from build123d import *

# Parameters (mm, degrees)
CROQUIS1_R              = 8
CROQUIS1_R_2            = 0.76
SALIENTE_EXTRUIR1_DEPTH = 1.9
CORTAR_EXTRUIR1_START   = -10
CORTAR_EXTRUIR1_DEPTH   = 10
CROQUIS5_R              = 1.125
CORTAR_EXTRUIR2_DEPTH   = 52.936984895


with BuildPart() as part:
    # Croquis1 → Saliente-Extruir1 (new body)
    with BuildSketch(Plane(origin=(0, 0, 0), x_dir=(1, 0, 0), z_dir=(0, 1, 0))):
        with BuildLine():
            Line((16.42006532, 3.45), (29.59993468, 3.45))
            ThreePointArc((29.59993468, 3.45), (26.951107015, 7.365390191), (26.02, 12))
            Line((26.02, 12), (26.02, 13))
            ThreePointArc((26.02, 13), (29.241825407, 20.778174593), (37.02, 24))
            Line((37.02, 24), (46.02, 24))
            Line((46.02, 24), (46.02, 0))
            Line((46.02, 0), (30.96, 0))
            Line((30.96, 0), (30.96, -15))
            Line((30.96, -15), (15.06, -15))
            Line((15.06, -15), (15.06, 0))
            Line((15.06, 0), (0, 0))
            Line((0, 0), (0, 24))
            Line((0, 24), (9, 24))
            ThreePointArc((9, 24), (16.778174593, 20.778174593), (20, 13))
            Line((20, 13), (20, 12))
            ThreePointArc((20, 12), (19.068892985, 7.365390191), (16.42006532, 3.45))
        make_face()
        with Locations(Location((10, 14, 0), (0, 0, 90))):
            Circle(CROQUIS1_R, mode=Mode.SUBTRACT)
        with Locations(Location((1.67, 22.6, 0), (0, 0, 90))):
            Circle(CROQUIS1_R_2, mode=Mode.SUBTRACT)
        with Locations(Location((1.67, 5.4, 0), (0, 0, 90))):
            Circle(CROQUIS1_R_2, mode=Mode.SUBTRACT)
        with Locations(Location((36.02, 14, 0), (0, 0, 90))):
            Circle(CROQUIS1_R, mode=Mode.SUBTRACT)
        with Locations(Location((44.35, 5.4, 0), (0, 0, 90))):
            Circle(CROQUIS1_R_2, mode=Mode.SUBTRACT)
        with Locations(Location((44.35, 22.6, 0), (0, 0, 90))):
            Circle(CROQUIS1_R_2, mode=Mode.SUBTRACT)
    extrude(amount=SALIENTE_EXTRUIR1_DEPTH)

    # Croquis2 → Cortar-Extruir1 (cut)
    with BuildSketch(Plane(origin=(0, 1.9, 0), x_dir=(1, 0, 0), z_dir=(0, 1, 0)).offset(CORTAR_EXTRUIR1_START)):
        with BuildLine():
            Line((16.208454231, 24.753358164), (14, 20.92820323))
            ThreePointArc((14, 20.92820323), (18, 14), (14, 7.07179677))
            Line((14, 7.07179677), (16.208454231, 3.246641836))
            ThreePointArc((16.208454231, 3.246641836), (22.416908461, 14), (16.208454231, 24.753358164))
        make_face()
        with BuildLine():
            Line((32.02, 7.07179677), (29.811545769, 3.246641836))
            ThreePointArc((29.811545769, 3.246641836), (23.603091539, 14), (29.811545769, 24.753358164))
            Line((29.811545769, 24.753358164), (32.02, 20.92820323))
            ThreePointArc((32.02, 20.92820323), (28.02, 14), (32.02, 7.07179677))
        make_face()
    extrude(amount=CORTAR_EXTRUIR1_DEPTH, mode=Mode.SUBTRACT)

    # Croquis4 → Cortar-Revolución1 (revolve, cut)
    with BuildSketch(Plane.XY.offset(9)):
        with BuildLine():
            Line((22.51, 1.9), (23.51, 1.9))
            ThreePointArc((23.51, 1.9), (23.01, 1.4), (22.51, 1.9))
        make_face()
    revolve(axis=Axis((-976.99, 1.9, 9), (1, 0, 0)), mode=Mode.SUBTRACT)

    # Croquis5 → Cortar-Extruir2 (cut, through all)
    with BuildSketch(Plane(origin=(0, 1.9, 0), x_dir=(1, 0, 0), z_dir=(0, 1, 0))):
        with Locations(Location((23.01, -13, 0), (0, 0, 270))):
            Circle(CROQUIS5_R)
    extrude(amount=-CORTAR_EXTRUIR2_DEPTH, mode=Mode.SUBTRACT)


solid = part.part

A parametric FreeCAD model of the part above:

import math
import FreeCAD as App
import Part
import Sketcher
from FreeCAD import Vector
Q = App.Units.Quantity

doc = App.newDocument("Part")
body = doc.addObject("PartDesign::Body", "Body")

sketch1 = doc.addObject("Sketcher::SketchObject", "Sketch")
body.addObject(sketch1)
sketch1.AttachmentSupport = (doc.XZ_Plane, [""])
sketch1.MapMode = "FlatFace"
sketch1.addGeometry([
    Part.LineSegment(Vector(29.6, -3.5, 0), Vector(16.4, -3.5, 0)),
    Part.ArcOfCircle(Part.Circle(Vector(8, -12, 0), Vector(0, 0, 1), 12), math.radians(0), math.radians(45)),
    Part.LineSegment(Vector(20, -12, 0), Vector(20, -13, 0)),
    Part.ArcOfCircle(Part.Circle(Vector(9, -13, 0), Vector(0, 0, 1), 11), math.radians(-90), math.radians(0)),
    Part.LineSegment(Vector(9, -24, 0), Vector(0, -24, 0)),
    Part.LineSegment(Vector(0, -24, 0), Vector(0, 0, 0)),
    Part.LineSegment(Vector(0, 0, 0), Vector(15.1, 0, 0)),
    Part.LineSegment(Vector(15.1, 0, 0), Vector(15.1, 15, 0)),
    Part.LineSegment(Vector(15.1, 15, 0), Vector(31, 15, 0)),
    Part.LineSegment(Vector(31, 15, 0), Vector(31, 0, 0)),
    Part.LineSegment(Vector(31, 0, 0), Vector(46, 0, 0)),
    Part.LineSegment(Vector(46, 0, 0), Vector(46, -24, 0)),
    Part.LineSegment(Vector(46, -24, 0), Vector(37, -24, 0)),
    Part.ArcOfCircle(Part.Circle(Vector(37, -13, 0), Vector(0, 0, 1), 11), math.radians(180), math.radians(270)),
    Part.LineSegment(Vector(26, -13, 0), Vector(26, -12, 0)),
    Part.ArcOfCircle(Part.Circle(Vector(38, -12, 0), Vector(0, 0, 1), 12), math.radians(135), math.radians(180)),
    Part.Circle(Vector(44.4, -5.4, 0), Vector(0, 0, 1), 0.8),
    Part.Circle(Vector(1.7, -5.4, 0), Vector(0, 0, 1), 0.8),
    Part.Circle(Vector(36, -14, 0), Vector(0, 0, 1), 8),
    Part.Circle(Vector(44.4, -22.6, 0), Vector(0, 0, 1), 0.8),
    Part.Circle(Vector(10, -14, 0), Vector(0, 0, 1), 8),
    Part.Circle(Vector(1.7, -22.6, 0), Vector(0, 0, 1), 0.8),
], False)
sketch1.addConstraint([
    Sketcher.Constraint("Coincident", 0, 2, 1, 2),
    Sketcher.Constraint("Tangent", 1, 1, 2, 1),
    Sketcher.Constraint("Tangent", 2, 2, 3, 2),
    Sketcher.Constraint("Tangent", 3, 1, 4, 1),
    Sketcher.Constraint("Coincident", 4, 2, 5, 1),
    Sketcher.Constraint("Coincident", 5, 2, 6, 1),
    Sketcher.Constraint("Coincident", 6, 2, 7, 1),
    Sketcher.Constraint("Coincident", 7, 2, 8, 1),
    Sketcher.Constraint("Coincident", 8, 2, 9, 1),
    Sketcher.Constraint("Coincident", 9, 2, 10, 1),
    Sketcher.Constraint("Coincident", 10, 2, 11, 1),
    Sketcher.Constraint("Coincident", 11, 2, 12, 1),
    Sketcher.Constraint("Tangent", 12, 2, 13, 2),
    Sketcher.Constraint("Tangent", 13, 1, 14, 1),
    Sketcher.Constraint("Tangent", 14, 2, 15, 2),
    Sketcher.Constraint("Coincident", 15, 1, 0, 1),
    Sketcher.Constraint("Horizontal", 0),
    Sketcher.Constraint("Vertical", 2),
    Sketcher.Constraint("Horizontal", 4),
    Sketcher.Constraint("Vertical", 5),
    Sketcher.Constraint("Horizontal", 6),
    Sketcher.Constraint("Vertical", 7),
    Sketcher.Constraint("Horizontal", 8),
    Sketcher.Constraint("Vertical", 9),
    Sketcher.Constraint("Horizontal", 10),
    Sketcher.Constraint("Vertical", 11),
    Sketcher.Constraint("Horizontal", 12),
    Sketcher.Constraint("Vertical", 14),
    Sketcher.Constraint("Coincident", 5, 2, -1, 1),
    Sketcher.Constraint("Equal", 3, 13),
    Sketcher.Constraint("Equal", 1, 15),
    Sketcher.Constraint("Equal", 16, 17),
    Sketcher.Constraint("Equal", 17, 19),
    Sketcher.Constraint("Equal", 18, 20),
    Sketcher.Constraint("Equal", 19, 21),
    Sketcher.Constraint("PointOnObject", 9, 2, -1),
    Sketcher.Constraint("Horizontal", 3, 3, 13, 3),
    Sketcher.Constraint("Horizontal", 1, 3, 15, 3),
    Sketcher.Constraint("Horizontal", 16, 3, 17, 3),
    Sketcher.Constraint("Horizontal", 18, 3, 20, 3),
    Sketcher.Constraint("Horizontal", 19, 3, 21, 3),
    Sketcher.Constraint("Vertical", 16, 3, 19, 3),
    Sketcher.Constraint("Vertical", 17, 3, 21, 3),
    Sketcher.Constraint("Equal", 6, 10),
    Sketcher.Constraint("Equal", 4, 12),
    Sketcher.Constraint("Diameter", 18, 16.0),
    Sketcher.Constraint("Radius", 1, 12.0),
    Sketcher.Constraint("Radius", 3, 11.0),
    Sketcher.Constraint("Diameter", 16, 1.52),
    Sketcher.Constraint("DistanceX", 4, 2, 4, 1, 9.0),
    Sketcher.Constraint("DistanceY", 2, 2, 2, 1, 1.0),
    Sketcher.Constraint("DistanceY", 5, 1, 5, 2, 24.0),
    Sketcher.Constraint("DistanceY", 7, 1, 7, 2, 15.0),
    Sketcher.Constraint("DistanceX", 8, 1, 8, 2, 15.9),
    Sketcher.Constraint("DistanceY", 18, 3, -1, 1, 14.0),
    Sketcher.Constraint("DistanceX", -1, 1, 20, 3, 10.0),
    Sketcher.Constraint("DistanceX", 18, 3, 13, 3, 1.0),
    Sketcher.Constraint("DistanceX", 6, 1, 6, 2, 15.06),
    Sketcher.Constraint("DistanceY", 16, 3, -1, 1, 5.4),
    Sketcher.Constraint("DistanceY", 19, 3, -1, 1, 22.6),
    Sketcher.Constraint("DistanceX", -1, 1, 16, 3, 44.35),
    Sketcher.Constraint("DistanceX", -1, 1, 17, 3, 1.67),
    Sketcher.Constraint("DistanceY", 0, 2, -1, 1, 3.45),
])
pad1 = doc.addObject("PartDesign::Pad", "Pad")
body.addObject(pad1)
pad1.Profile = sketch1
pad1.Length = 1.9
pad1.Reversed = True

sketch2 = doc.addObject("Sketcher::SketchObject", "Sketch001")
body.addObject(sketch2)
sketch2.AttachmentSupport = (doc.XZ_Plane, [""])
sketch2.MapMode = "FlatFace"
sketch2.AttachmentOffset = App.Placement(Vector(0, 0, 8.1), App.Rotation())
sketch2.addGeometry([
    Part.LineSegment(Vector(16.2, -24.8, 0), Vector(14, -20.9, 0)),
    Part.ArcOfCircle(Part.Circle(Vector(10, -14, 0), Vector(0, 0, 1), 8), math.radians(-60), math.radians(60)),
    Part.LineSegment(Vector(14, -7.1, 0), Vector(16.2, -3.2, 0)),
    Part.ArcOfCircle(Part.Circle(Vector(10, -14, 0), Vector(0, 0, 1), 12.4), math.radians(-60), math.radians(60)),
    Part.LineSegment(Vector(29.8, -3.2, 0), Vector(32, -7.1, 0)),
    Part.ArcOfCircle(Part.Circle(Vector(36, -14, 0), Vector(0, 0, 1), 8), math.radians(120), math.radians(240)),
    Part.LineSegment(Vector(32, -20.9, 0), Vector(29.8, -24.8, 0)),
    Part.ArcOfCircle(Part.Circle(Vector(36, -14, 0), Vector(0, 0, 1), 12.4), math.radians(120), math.radians(240)),
], False)
sketch2.addConstraint([
    Sketcher.Constraint("Coincident", 0, 2, 1, 1),
    Sketcher.Constraint("Coincident", 1, 2, 2, 1),
    Sketcher.Constraint("Coincident", 2, 2, 3, 2),
    Sketcher.Constraint("Coincident", 3, 1, 0, 1),
    Sketcher.Constraint("Coincident", 4, 2, 5, 1),
    Sketcher.Constraint("Coincident", 5, 2, 6, 1),
    Sketcher.Constraint("Coincident", 6, 2, 7, 2),
    Sketcher.Constraint("Coincident", 7, 1, 4, 1),
    Sketcher.Constraint("Coincident", 3, 3, 1, 3),
    Sketcher.Constraint("Coincident", 7, 3, 5, 3),
    Sketcher.Constraint("Equal", 1, 5),
    Sketcher.Constraint("Equal", 3, 7),
    Sketcher.Constraint("Parallel", 0, 4),
    Sketcher.Constraint("Parallel", 2, 6),
    Sketcher.Constraint("Horizontal", 3, 3, 5, 3),
    Sketcher.Constraint("Horizontal", 1, 2, 4, 2),
    Sketcher.Constraint("Horizontal", 0, 2, 5, 2),
    Sketcher.Constraint("Horizontal", 3, 1, 6, 2),
    Sketcher.Constraint("Vertical", 0, 2, 1, 2),
    Sketcher.Constraint("Radius", 1, 8.0),
    Sketcher.Constraint("Angle", 0, Q("120 deg")),
    Sketcher.Constraint("DistanceX", -1, 1, 1, 3, 10.0),
    Sketcher.Constraint("DistanceY", 1, 3, -1, 1, 14.0),
    Sketcher.Constraint("DistanceX", -1, 1, 0, 2, 14.0),
    Sketcher.Constraint("DistanceX", -1, 1, 5, 3, 36.02),
    Sketcher.Constraint("Radius", 3, 12.416908),
])
pocket1 = doc.addObject("PartDesign::Pocket", "Pocket")
body.addObject(pocket1)
pocket1.Profile = sketch2
pocket1.Length = 10

sketch3 = doc.addObject("Sketcher::SketchObject", "Sketch002")
body.addObject(sketch3)
sketch3.AttachmentSupport = (doc.XY_Plane, [""])
sketch3.MapMode = "FlatFace"
sketch3.AttachmentOffset = App.Placement(Vector(0, 0, 9), App.Rotation())
sketch3.addGeometry([
    Part.LineSegment(Vector(23.5, 1.9, 0), Vector(22.5, 1.9, 0)),
    Part.ArcOfCircle(Part.Circle(Vector(23, 1.9, 0), Vector(0, 0, 1), 0.5), math.radians(180), math.radians(360)),
], False)
sketch3.addGeometry(Part.LineSegment(Vector(22.5, 1.9, 0), Vector(23.5, 1.9, 0)), True)
sketch3.addConstraint([
    Sketcher.Constraint("Coincident", 0, 1, 1, 2),
    Sketcher.Constraint("Coincident", 1, 1, 0, 2),
    Sketcher.Constraint("Horizontal", 0),
    Sketcher.Constraint("Horizontal", 2),
    Sketcher.Constraint("Coincident", 2, 1, 1, 1),
    Sketcher.Constraint("Horizontal", 1, 3, 0, 1),
    Sketcher.Constraint("Equal", 0, 2),
    Sketcher.Constraint("Radius", 1, 0.5),
    Sketcher.Constraint("DistanceY", -1, 1, 1, 3, 1.9),
    Sketcher.Constraint("DistanceX", -1, 1, 1, 3, 23.01),
])
groove = doc.addObject("PartDesign::Groove", "Groove")
body.addObject(groove)
groove.Profile = sketch3
groove.ReferenceAxis = (sketch3, ["Axis0"])
groove.Angle = 360

sketch4 = doc.addObject("Sketcher::SketchObject", "Sketch003")
body.addObject(sketch4)
sketch4.AttachmentSupport = (doc.XZ_Plane, [""])
sketch4.MapMode = "FlatFace"
sketch4.AttachmentOffset = App.Placement(Vector(0, 0, -1.9), App.Rotation())
sketch4.addGeometry(Part.Circle(Vector(23, 13, 0), Vector(0, 0, 1), 1.1), False)
sketch4.addConstraint([
    Sketcher.Constraint("Diameter", 0, 2.25),
    Sketcher.Constraint("DistanceY", -1, 1, 0, 3, 13.0),
    Sketcher.Constraint("DistanceX", -1, 1, 0, 3, 23.01),
])
pocket2 = doc.addObject("PartDesign::Pocket", "Pocket001")
body.addObject(pocket2)
pocket2.Profile = sketch4
pocket2.Type = "ThroughAll"
pocket2.Reversed = True

doc.recompute()
